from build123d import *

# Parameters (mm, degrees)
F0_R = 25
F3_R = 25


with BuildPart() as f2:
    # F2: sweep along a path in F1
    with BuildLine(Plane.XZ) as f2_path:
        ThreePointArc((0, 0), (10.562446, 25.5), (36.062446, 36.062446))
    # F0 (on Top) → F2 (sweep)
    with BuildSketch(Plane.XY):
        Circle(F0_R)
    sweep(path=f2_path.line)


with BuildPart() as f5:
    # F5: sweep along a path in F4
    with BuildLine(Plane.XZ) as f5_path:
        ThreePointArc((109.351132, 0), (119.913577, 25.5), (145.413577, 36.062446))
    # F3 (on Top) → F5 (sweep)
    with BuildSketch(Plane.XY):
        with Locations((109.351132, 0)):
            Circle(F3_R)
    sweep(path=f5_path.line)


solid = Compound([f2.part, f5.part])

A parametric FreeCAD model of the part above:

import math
import FreeCAD as App
import Part
import Sketcher

V = App.Vector
Q = App.Units.Quantity

doc = App.newDocument("Part")
body = doc.addObject("PartDesign::Body", "Body")

# Sketch on XY plane
sketch1 = body.newObject("Sketcher::SketchObject", "Sketch")
sketch1.AttachmentSupport = (doc.getObject("XY_Plane"), [""])
sketch1.MapMode = "FlatFace"
sketch1.addGeometry(Part.Circle(V(0, 0, 0), V(0, 0, 1), 25), False)
sketch1.addConstraint([
    Sketcher.Constraint("Coincident", 0, 3, -1, 1),
    Sketcher.Constraint("Diameter", 0, Q("50 mm")),
])

# Sketch on XZ plane
sketch2 = body.newObject("Sketcher::SketchObject", "Sketch001")
sketch2.AttachmentSupport = (doc.getObject("XZ_Plane"), [""])
sketch2.MapMode = "FlatFace"
sketch2.addGeometry(Part.ArcOfCircle(Part.Circle(V(36, 0, 0), V(0, 0, 1), 36), math.radians(90), math.radians(180)), False)
sketch2.addConstraint([
    Sketcher.Constraint("Coincident", 0, 2, -1, 1),
    Sketcher.Constraint("PointOnObject", 0, 3, -1),
    Sketcher.Constraint("Radius", 0, Q("36.062446 mm")),
    Sketcher.Constraint("DistanceX", -1, 1, 0, 1, Q("36.062446 mm")),
])
doc.recompute()

additivepipe = body.newObject("PartDesign::AdditivePipe", "AdditivePipe")
additivepipe.Profile = sketch1
additivepipe.Spine = (sketch2, ["Edge1"])
body2 = doc.addObject("PartDesign::Body", "Body001")

# Sketch on XY plane
sketch3 = body2.newObject("Sketcher::SketchObject", "Sketch002")
sketch3.AttachmentSupport = (doc.getObject("XY_Plane001"), [""])
sketch3.MapMode = "FlatFace"
sketch3.addGeometry(Part.Circle(V(109, 0, 0), V(0, 0, 1), 25), False)
sketch3.addConstraint([
    Sketcher.Constraint("PointOnObject", 0, 3, -1),
    Sketcher.Constraint("Diameter", 0, Q("50 mm")),
    Sketcher.Constraint("DistanceX", -1, 1, 0, 3, Q("109.351132 mm")),
])

# Sketch on XZ plane
sketch4 = body2.newObject("Sketcher::SketchObject", "Sketch003")
sketch4.AttachmentSupport = (doc.getObject("XZ_Plane001"), [""])
sketch4.MapMode = "FlatFace"
sketch4.addGeometry(Part.ArcOfCircle(Part.Circle(V(145, 0, 0), V(0, 0, 1), 36), math.radians(90), math.radians(180)), False)
sketch4.addConstraint([
    Sketcher.Constraint("PointOnObject", 0, 3, -1),
    Sketcher.Constraint("PointOnObject", 0, 2, -1),
    Sketcher.Constraint("Radius", 0, Q("36.062445 mm")),
    Sketcher.Constraint("DistanceX", -1, 1, 0, 3, Q("145.413577 mm")),
    Sketcher.Constraint("DistanceX", -1, 1, 0, 1, Q("145.413577 mm")),
])
doc.recompute()

additivepipe2 = body2.newObject("PartDesign::AdditivePipe", "AdditivePipe001")
additivepipe2.Profile = sketch3
additivepipe2.Spine = (sketch4, ["Edge1"])

doc.recompute()
